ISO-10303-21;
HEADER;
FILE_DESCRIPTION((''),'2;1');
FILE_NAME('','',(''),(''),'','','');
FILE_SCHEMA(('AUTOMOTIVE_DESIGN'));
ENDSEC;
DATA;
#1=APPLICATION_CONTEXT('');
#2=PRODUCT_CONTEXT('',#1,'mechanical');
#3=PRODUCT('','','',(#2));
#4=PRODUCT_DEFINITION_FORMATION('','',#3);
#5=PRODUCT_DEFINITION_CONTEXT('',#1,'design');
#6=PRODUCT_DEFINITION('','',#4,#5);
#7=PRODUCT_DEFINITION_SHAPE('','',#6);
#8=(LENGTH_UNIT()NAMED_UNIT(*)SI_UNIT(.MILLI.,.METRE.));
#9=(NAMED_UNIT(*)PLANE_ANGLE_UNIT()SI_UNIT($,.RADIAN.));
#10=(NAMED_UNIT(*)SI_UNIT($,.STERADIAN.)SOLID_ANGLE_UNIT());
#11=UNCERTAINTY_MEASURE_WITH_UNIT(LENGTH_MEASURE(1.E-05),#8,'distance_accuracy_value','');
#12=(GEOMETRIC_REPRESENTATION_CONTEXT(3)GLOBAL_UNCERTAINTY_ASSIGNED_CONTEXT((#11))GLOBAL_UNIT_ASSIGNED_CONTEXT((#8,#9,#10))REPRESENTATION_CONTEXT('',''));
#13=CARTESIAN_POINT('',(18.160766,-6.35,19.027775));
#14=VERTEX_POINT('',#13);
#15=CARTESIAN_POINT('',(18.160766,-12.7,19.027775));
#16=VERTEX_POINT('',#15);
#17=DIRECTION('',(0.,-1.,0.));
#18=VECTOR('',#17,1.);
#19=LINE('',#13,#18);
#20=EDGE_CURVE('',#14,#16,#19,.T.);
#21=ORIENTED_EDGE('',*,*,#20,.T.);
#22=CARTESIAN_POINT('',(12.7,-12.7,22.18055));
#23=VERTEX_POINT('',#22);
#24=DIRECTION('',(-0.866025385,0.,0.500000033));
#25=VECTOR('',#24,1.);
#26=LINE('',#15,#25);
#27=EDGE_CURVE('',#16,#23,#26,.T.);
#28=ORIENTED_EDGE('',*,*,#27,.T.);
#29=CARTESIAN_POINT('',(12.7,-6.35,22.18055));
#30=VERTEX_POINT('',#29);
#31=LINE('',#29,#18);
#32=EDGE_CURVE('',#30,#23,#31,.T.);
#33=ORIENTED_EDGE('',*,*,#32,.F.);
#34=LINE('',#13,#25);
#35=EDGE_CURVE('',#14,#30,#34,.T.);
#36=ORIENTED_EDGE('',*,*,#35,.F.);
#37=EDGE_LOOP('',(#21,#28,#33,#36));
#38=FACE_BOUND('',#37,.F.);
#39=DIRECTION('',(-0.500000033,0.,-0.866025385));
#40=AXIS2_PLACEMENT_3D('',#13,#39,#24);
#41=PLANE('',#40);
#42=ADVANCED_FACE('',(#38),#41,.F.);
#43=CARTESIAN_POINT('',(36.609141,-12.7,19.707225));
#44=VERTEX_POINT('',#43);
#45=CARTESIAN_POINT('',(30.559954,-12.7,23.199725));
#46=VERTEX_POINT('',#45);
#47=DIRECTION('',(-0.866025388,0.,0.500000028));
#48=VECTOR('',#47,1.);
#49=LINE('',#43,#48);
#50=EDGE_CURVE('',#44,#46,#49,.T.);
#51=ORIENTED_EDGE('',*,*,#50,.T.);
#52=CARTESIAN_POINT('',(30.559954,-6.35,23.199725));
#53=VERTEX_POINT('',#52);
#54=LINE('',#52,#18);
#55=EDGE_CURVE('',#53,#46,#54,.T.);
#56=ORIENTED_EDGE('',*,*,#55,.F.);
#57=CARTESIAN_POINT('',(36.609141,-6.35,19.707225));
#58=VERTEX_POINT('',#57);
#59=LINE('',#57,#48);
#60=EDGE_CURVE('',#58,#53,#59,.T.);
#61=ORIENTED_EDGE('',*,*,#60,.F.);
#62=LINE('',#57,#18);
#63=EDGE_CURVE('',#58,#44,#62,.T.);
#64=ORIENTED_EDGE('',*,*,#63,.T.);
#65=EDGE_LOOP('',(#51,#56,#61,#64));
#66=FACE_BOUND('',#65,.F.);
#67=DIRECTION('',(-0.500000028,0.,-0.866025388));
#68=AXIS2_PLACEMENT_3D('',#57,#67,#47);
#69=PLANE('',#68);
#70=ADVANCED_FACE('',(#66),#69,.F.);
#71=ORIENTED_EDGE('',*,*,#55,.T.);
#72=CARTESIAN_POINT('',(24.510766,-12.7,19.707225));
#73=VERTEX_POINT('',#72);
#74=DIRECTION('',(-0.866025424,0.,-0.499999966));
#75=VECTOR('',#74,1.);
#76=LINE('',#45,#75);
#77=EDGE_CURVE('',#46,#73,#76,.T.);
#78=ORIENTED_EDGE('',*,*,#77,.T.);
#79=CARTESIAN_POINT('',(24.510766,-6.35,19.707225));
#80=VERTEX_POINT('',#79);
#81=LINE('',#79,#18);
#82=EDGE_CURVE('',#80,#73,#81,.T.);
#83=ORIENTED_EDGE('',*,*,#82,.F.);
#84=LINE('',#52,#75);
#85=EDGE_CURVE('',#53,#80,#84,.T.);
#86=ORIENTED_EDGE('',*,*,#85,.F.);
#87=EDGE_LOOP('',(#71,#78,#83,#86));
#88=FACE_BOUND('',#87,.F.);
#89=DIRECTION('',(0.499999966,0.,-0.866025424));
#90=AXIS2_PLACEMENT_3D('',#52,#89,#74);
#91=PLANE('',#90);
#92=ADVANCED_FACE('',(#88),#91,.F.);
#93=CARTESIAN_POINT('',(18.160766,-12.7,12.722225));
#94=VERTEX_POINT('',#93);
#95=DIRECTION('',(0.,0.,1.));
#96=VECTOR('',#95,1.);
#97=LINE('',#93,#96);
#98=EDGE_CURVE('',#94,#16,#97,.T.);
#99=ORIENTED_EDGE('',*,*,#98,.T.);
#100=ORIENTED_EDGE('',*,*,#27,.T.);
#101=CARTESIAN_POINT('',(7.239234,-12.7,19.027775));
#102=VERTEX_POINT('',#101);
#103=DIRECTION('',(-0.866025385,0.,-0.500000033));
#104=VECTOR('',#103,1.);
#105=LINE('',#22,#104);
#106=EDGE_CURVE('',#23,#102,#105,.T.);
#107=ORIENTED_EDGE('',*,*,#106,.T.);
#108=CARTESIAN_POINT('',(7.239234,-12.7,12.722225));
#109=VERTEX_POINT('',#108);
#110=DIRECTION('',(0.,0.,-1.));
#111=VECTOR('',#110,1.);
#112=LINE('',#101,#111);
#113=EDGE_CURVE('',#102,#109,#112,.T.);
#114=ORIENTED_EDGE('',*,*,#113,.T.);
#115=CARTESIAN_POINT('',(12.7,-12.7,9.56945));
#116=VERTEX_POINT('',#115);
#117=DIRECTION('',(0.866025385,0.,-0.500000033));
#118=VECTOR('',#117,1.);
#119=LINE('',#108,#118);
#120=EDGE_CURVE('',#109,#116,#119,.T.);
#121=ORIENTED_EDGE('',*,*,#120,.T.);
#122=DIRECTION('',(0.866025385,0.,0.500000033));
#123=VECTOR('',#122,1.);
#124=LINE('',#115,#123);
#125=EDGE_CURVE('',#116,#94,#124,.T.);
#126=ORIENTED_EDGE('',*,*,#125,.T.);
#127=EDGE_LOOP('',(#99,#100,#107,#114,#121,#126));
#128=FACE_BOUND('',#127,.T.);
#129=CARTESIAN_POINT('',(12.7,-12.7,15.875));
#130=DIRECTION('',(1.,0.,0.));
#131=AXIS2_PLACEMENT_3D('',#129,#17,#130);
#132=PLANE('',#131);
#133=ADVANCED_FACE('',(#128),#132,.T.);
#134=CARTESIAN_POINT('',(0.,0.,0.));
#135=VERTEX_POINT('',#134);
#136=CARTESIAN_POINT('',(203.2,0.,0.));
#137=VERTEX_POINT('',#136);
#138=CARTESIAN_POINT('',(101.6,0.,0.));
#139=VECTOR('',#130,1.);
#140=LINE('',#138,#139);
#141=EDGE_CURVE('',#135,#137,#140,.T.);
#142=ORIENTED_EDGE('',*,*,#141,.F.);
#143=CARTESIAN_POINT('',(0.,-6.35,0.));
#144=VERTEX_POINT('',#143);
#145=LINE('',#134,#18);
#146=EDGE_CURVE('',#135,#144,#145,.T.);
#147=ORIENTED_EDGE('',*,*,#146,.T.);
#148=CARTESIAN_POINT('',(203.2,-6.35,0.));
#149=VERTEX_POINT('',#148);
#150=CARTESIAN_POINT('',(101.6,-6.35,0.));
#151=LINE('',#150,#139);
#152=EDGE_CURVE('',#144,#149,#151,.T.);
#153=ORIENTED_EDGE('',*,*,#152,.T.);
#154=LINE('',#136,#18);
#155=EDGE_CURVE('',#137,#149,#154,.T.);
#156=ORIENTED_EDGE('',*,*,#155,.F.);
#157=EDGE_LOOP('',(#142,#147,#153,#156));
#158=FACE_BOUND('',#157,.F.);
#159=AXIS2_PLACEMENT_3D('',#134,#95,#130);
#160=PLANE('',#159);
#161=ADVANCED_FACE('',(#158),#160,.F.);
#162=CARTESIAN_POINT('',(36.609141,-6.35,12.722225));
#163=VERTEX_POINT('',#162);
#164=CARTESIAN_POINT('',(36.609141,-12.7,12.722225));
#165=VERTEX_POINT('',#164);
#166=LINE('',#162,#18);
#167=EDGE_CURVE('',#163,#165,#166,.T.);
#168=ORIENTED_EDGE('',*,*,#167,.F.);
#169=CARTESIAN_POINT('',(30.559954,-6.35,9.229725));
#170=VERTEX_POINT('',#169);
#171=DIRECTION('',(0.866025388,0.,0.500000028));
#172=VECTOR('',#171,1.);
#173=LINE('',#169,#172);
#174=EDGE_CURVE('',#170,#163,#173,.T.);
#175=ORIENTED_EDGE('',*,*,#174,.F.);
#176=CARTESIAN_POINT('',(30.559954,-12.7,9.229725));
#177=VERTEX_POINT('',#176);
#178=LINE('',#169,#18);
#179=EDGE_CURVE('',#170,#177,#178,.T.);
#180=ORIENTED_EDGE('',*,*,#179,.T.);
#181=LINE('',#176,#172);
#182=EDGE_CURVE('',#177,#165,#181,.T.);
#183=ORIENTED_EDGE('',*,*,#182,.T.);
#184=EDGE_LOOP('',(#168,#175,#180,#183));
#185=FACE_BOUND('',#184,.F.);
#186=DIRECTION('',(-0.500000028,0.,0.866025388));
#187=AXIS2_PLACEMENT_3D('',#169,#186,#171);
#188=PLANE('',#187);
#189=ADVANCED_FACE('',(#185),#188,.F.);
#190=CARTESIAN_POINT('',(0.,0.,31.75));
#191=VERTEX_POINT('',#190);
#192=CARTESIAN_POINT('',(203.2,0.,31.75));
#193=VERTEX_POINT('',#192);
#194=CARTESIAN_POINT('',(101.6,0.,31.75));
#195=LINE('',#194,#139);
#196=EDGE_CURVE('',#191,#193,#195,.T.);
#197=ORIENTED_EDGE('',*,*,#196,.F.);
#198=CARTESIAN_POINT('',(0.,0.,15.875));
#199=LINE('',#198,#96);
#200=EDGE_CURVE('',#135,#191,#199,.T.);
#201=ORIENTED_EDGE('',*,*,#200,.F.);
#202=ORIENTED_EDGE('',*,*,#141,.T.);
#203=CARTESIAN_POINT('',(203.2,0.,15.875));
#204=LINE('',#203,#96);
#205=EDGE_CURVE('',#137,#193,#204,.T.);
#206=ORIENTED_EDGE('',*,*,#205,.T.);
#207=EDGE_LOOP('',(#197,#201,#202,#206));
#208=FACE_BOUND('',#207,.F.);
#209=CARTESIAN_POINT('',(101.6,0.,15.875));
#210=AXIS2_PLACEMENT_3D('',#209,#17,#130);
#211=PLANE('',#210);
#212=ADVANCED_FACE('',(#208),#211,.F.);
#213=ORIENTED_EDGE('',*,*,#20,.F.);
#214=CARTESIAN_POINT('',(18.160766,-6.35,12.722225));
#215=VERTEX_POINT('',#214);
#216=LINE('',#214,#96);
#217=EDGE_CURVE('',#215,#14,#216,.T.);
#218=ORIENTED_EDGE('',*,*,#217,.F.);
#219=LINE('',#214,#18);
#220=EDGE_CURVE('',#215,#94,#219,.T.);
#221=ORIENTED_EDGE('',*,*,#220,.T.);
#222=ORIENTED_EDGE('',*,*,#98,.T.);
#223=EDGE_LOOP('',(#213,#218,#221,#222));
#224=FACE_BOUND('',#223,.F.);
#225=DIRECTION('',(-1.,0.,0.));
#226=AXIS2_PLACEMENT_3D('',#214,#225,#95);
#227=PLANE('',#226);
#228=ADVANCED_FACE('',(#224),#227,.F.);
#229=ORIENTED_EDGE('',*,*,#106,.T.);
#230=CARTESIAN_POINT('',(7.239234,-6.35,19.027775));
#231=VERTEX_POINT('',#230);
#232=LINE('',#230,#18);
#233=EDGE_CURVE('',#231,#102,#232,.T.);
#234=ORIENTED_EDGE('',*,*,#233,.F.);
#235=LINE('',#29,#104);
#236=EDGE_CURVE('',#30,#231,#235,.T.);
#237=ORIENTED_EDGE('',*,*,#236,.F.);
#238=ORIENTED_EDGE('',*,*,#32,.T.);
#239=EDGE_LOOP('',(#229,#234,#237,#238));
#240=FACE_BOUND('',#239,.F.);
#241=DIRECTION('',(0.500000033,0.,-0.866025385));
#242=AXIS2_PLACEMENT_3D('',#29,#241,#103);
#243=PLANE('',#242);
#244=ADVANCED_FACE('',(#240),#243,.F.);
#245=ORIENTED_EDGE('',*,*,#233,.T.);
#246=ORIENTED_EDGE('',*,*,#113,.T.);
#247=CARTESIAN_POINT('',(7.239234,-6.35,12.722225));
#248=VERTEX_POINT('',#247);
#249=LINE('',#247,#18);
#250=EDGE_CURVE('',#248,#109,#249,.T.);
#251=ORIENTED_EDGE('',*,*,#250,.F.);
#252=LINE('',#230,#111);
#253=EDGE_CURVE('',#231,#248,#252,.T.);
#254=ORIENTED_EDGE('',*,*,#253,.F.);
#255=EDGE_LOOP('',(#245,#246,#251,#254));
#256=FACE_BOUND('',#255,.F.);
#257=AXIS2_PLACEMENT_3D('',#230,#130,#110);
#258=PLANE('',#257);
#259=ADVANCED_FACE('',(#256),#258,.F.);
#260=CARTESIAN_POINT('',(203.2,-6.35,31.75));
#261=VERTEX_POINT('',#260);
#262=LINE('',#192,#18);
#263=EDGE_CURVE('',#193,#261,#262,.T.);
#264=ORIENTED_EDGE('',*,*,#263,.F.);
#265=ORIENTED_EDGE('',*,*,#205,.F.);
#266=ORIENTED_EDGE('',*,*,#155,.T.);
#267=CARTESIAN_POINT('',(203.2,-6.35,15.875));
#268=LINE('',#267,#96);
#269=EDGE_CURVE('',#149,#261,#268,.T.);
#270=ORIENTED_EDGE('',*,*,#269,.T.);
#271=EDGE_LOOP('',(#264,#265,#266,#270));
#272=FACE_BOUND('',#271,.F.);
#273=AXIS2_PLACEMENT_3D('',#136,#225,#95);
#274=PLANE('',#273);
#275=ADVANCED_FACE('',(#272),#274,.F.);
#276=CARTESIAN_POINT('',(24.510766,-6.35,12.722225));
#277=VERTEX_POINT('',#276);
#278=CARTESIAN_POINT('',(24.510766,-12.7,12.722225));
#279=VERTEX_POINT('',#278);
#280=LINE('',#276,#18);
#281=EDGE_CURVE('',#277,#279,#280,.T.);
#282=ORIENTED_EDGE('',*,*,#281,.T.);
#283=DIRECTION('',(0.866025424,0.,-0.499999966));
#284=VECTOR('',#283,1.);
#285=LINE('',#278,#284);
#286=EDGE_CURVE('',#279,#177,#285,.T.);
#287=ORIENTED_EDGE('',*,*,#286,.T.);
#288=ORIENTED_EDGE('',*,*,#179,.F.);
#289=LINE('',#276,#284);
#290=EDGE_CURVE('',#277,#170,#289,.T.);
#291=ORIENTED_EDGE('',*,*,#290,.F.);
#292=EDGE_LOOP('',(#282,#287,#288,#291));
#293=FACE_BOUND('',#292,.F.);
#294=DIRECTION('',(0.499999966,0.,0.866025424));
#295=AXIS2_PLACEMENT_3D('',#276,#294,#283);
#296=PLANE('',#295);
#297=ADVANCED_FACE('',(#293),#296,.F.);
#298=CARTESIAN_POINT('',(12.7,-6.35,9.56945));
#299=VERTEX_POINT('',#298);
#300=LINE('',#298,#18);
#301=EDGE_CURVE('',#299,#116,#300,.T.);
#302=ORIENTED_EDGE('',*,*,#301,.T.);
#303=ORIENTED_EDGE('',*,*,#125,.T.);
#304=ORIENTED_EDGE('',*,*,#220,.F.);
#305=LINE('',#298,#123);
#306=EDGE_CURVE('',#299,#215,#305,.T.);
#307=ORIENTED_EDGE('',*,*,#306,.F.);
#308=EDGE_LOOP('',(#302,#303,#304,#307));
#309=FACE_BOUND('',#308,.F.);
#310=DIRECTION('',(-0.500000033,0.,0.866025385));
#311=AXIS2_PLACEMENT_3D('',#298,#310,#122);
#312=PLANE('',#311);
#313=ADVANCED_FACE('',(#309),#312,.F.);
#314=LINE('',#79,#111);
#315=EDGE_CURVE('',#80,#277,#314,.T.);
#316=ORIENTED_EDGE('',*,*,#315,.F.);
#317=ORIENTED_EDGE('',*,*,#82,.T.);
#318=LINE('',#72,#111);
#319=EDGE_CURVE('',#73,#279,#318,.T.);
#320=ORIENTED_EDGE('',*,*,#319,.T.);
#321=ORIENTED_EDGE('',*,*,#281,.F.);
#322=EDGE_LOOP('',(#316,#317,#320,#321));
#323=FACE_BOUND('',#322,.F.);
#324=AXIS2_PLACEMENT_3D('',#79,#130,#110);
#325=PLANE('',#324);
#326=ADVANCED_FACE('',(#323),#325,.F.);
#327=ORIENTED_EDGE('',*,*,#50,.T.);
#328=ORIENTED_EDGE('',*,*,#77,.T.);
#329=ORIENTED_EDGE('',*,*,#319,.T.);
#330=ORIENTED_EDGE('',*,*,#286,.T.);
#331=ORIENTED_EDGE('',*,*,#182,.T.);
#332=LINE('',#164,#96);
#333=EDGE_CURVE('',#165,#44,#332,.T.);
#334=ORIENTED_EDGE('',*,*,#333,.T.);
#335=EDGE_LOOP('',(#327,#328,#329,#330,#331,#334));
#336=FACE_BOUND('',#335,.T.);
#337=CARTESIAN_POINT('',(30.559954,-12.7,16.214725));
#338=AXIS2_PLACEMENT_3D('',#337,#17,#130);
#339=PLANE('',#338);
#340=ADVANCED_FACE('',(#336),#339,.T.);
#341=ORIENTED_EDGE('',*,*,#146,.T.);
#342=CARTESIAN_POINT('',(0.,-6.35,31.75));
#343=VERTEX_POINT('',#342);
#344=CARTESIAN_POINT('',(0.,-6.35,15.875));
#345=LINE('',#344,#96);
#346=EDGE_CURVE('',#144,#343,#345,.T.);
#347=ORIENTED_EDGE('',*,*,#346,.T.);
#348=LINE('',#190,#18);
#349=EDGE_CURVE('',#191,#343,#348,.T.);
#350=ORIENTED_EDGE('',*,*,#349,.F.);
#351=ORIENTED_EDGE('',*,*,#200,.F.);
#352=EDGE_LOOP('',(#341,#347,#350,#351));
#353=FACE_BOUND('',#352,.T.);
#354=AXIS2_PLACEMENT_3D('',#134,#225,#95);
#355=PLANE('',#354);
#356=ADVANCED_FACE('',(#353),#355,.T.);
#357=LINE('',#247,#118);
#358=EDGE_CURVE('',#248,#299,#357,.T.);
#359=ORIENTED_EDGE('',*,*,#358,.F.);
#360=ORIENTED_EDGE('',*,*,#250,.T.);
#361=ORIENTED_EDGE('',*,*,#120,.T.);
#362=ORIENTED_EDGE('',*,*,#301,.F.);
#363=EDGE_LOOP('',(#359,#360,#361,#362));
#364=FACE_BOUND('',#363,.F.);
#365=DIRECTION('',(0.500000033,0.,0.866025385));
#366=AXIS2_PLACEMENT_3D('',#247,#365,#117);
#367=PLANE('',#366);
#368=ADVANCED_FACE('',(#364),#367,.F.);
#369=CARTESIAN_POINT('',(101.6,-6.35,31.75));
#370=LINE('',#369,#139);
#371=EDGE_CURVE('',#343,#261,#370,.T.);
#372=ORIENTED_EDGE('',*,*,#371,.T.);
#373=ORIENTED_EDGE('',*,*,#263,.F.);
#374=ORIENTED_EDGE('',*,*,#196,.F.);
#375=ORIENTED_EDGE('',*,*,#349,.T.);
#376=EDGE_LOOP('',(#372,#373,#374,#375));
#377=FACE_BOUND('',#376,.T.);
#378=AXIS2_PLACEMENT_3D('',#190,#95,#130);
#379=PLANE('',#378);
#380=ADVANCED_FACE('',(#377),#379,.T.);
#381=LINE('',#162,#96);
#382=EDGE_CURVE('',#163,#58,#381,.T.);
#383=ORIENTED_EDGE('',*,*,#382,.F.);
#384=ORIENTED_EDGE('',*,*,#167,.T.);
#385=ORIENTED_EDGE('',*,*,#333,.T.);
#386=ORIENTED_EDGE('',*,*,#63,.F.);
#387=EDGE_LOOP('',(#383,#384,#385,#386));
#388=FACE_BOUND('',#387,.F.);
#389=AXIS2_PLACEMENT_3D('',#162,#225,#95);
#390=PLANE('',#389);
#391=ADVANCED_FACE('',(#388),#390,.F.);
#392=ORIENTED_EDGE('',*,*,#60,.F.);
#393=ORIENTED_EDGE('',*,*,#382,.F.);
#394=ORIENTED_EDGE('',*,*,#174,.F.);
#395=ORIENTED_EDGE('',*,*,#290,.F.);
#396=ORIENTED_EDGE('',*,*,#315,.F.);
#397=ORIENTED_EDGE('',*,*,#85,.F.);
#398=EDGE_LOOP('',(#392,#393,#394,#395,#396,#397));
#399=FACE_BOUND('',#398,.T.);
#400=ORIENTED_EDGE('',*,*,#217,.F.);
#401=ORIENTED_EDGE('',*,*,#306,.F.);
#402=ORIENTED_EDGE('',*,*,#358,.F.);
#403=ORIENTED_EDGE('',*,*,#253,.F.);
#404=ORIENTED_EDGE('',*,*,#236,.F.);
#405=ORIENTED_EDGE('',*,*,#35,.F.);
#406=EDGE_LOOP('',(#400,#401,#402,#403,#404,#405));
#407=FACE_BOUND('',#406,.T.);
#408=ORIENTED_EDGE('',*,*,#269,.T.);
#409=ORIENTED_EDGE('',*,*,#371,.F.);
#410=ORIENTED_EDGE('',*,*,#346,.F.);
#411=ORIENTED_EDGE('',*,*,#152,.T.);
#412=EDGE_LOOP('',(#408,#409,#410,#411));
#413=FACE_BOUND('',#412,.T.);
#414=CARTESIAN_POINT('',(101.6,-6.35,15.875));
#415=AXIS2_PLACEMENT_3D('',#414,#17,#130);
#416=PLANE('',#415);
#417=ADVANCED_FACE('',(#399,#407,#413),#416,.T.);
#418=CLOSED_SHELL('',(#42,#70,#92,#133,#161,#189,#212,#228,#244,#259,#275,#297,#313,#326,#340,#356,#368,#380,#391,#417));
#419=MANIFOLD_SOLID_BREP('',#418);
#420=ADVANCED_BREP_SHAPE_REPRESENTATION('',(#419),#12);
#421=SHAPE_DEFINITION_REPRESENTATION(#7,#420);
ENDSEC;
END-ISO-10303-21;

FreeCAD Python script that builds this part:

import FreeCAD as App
import Part
import Sketcher
Q = App.Units.Quantity

doc = App.newDocument("Part")
params = doc.addObject("Spreadsheet::Sheet", "Params")
for row, (alias, value) in enumerate([
    ("sketch1_width", "8 in"),
    ("sketch1_height", "1.25 in"),
    ("pad1_length", "0.25 in"),
    ("pad2_length", "0.25 in"),
    ("sketch3_height", "0.275 in"),
    ("pad3_length", "0.25 in"),
], start=1):
    params.set(f"A{row}", alias)
    params.set(f"B{row}", "=" + value)
    params.setAlias(f"B{row}", alias)

body = doc.addObject("PartDesign::Body", "Body")

# Sketch on XZ plane
sketch1 = body.newObject("Sketcher::SketchObject", "Sketch")
sketch1.AttachmentSupport = (doc.getObject("XZ_Plane"), [""])
sketch1.MapMode = "FlatFace"
sketch1.addGeometry([
    Part.LineSegment(App.Vector(0, 32, 0), App.Vector(0, 0, 0)),
    Part.LineSegment(App.Vector(0, 0, 0), App.Vector(203, 0, 0)),
    Part.LineSegment(App.Vector(203, 0, 0), App.Vector(203, 32, 0)),
    Part.LineSegment(App.Vector(203, 32, 0), App.Vector(0, 32, 0)),
], False)
sketch1.addConstraint([
    Sketcher.Constraint("Coincident", 0, 2, 1, 1),
    Sketcher.Constraint("Coincident", 1, 2, 2, 1),
    Sketcher.Constraint("Coincident", 2, 2, 3, 1),
    Sketcher.Constraint("Coincident", 3, 2, 0, 1),
    Sketcher.Constraint("Vertical", 0),
    Sketcher.Constraint("Horizontal", 1),
    Sketcher.Constraint("Vertical", 2),
    Sketcher.Constraint("Horizontal", 3),
    Sketcher.Constraint("Coincident", 0, 2, -1, 1),
    Sketcher.Constraint("DistanceX", 1, 1, 1, 2, Q("8 in")),
    Sketcher.Constraint("DistanceY", 0, 2, 0, 1, Q("1.25 in")),
])
sketch1.setExpression("Constraints[9]", "Params.sketch1_width")
sketch1.setExpression("Constraints[10]", "Params.sketch1_height")
pad1 = body.newObject("PartDesign::Pad", "Pad")
pad1.Profile = sketch1
pad1.setExpression("Length", "Params.pad1_length")

# Sketch on XZ plane
sketch2 = body.newObject("Sketcher::SketchObject", "Sketch001")
sketch2.AttachmentSupport = (doc.getObject("XZ_Plane"), [""])
sketch2.MapMode = "FlatFace"
sketch2.AttachmentOffset = App.Placement(App.Vector(0, 0, 0.25 * 25.4), App.Rotation())
sketch2.addGeometry([
    Part.LineSegment(App.Vector(18, 13, 0), App.Vector(18, 19, 0)),  # 0
    Part.LineSegment(App.Vector(18, 19, 0), App.Vector(13, 22, 0)),  # 1
    Part.LineSegment(App.Vector(13, 22, 0), App.Vector(7, 19, 0)),  # 2
    Part.LineSegment(App.Vector(7, 19, 0), App.Vector(7, 13, 0)),  # 3
    Part.LineSegment(App.Vector(7, 13, 0), App.Vector(13, 10, 0)),  # 4
    Part.LineSegment(App.Vector(13, 10, 0), App.Vector(18, 13, 0)),  # 5
], False)
sketch2.addConstraint([
    Sketcher.Constraint("Coincident", 0, 2, 1, 1),
    Sketcher.Constraint("Coincident", 1, 2, 2, 1),
    Sketcher.Constraint("Coincident", 2, 2, 3, 1),
    Sketcher.Constraint("Coincident", 3, 2, 4, 1),
    Sketcher.Constraint("Coincident", 4, 2, 5, 1),
    Sketcher.Constraint("Coincident", 5, 2, 0, 1),
    Sketcher.Constraint("Vertical", 0),
    Sketcher.Constraint("Vertical", 3),
    Sketcher.Constraint("Parallel", 1, 4),
    Sketcher.Constraint("Parallel", 2, 5),
    Sketcher.Constraint("Horizontal", 0, 2, 2, 2),
    Sketcher.Constraint("Horizontal", 3, 2, 5, 2),
    Sketcher.Constraint("Vertical", 1, 2, 4, 2),
    Sketcher.Constraint("Angle", 1, Q("149.999998 deg")),
    Sketcher.Constraint("DistanceX", -1, 1, 1, 2, Q("0.5 in")),
    Sketcher.Constraint("DistanceY", 4, 2, 1, 2, Q("0.4965 in")),
    Sketcher.Constraint("DistanceY", 0, 1, 0, 2, 6.30555),
    Sketcher.Constraint("DistanceY", -1, 1, 1, 2, 22.18055),
])
pad2 = body.newObject("PartDesign::Pad", "Pad001")
pad2.Profile = sketch2
pad2.setExpression("Length", "Params.pad2_length")

# Sketch on XZ plane
sketch3 = body.newObject("Sketcher::SketchObject", "Sketch002")
sketch3.AttachmentSupport = (doc.getObject("XZ_Plane"), [""])
sketch3.MapMode = "FlatFace"
sketch3.AttachmentOffset = App.Placement(App.Vector(0, 0, 0.25 * 25.4), App.Rotation())
sketch3.addGeometry([
    Part.LineSegment(App.Vector(37, 13, 0), App.Vector(37, 20, 0)),  # 0
    Part.LineSegment(App.Vector(37, 20, 0), App.Vector(31, 23, 0)),  # 1
    Part.LineSegment(App.Vector(31, 23, 0), App.Vector(25, 20, 0)),  # 2
    Part.LineSegment(App.Vector(25, 20, 0), App.Vector(25, 13, 0)),  # 3
    Part.LineSegment(App.Vector(25, 13, 0), App.Vector(31, 9, 0)),  # 4
    Part.LineSegment(App.Vector(31, 9, 0), App.Vector(37, 13, 0)),  # 5
], False)
sketch3.addConstraint([
    Sketcher.Constraint("Coincident", 0, 2, 1, 1),
    Sketcher.Constraint("Coincident", 1, 2, 2, 1),
    Sketcher.Constraint("Coincident", 2, 2, 3, 1),
    Sketcher.Constraint("Coincident", 3, 2, 4, 1),
    Sketcher.Constraint("Coincident", 4, 2, 5, 1),
    Sketcher.Constraint("Coincident", 5, 2, 0, 1),
    Sketcher.Constraint("Vertical", 0),
    Sketcher.Constraint("Vertical", 3),
    Sketcher.Constraint("Parallel", 1, 4),
    Sketcher.Constraint("Parallel", 2, 5),
    Sketcher.Constraint("Horizontal", 0, 2, 2, 2),
    Sketcher.Constraint("Horizontal", 3, 2, 5, 2),
    Sketcher.Constraint("Vertical", 1, 2, 4, 2),
    Sketcher.Constraint("Angle", 1, Q("149.999998 deg")),
    Sketcher.Constraint("DistanceY", 0, 1, 0, 2, Q("0.275 in")),
    Sketcher.Constraint("DistanceY", 4, 2, 1, 2, Q("0.55 in")),
    Sketcher.Constraint("DistanceX", -1, 1, 0, 2, 36.609141),
    Sketcher.Constraint("DistanceY", -1, 1, 0, 2, 19.707225),
])
sketch3.setExpression("Constraints[14]", "Params.sketch3_height")
pad3 = body.newObject("PartDesign::Pad", "Pad002")
pad3.Profile = sketch3
pad3.setExpression("Length", "Params.pad3_length")

doc.recompute()
